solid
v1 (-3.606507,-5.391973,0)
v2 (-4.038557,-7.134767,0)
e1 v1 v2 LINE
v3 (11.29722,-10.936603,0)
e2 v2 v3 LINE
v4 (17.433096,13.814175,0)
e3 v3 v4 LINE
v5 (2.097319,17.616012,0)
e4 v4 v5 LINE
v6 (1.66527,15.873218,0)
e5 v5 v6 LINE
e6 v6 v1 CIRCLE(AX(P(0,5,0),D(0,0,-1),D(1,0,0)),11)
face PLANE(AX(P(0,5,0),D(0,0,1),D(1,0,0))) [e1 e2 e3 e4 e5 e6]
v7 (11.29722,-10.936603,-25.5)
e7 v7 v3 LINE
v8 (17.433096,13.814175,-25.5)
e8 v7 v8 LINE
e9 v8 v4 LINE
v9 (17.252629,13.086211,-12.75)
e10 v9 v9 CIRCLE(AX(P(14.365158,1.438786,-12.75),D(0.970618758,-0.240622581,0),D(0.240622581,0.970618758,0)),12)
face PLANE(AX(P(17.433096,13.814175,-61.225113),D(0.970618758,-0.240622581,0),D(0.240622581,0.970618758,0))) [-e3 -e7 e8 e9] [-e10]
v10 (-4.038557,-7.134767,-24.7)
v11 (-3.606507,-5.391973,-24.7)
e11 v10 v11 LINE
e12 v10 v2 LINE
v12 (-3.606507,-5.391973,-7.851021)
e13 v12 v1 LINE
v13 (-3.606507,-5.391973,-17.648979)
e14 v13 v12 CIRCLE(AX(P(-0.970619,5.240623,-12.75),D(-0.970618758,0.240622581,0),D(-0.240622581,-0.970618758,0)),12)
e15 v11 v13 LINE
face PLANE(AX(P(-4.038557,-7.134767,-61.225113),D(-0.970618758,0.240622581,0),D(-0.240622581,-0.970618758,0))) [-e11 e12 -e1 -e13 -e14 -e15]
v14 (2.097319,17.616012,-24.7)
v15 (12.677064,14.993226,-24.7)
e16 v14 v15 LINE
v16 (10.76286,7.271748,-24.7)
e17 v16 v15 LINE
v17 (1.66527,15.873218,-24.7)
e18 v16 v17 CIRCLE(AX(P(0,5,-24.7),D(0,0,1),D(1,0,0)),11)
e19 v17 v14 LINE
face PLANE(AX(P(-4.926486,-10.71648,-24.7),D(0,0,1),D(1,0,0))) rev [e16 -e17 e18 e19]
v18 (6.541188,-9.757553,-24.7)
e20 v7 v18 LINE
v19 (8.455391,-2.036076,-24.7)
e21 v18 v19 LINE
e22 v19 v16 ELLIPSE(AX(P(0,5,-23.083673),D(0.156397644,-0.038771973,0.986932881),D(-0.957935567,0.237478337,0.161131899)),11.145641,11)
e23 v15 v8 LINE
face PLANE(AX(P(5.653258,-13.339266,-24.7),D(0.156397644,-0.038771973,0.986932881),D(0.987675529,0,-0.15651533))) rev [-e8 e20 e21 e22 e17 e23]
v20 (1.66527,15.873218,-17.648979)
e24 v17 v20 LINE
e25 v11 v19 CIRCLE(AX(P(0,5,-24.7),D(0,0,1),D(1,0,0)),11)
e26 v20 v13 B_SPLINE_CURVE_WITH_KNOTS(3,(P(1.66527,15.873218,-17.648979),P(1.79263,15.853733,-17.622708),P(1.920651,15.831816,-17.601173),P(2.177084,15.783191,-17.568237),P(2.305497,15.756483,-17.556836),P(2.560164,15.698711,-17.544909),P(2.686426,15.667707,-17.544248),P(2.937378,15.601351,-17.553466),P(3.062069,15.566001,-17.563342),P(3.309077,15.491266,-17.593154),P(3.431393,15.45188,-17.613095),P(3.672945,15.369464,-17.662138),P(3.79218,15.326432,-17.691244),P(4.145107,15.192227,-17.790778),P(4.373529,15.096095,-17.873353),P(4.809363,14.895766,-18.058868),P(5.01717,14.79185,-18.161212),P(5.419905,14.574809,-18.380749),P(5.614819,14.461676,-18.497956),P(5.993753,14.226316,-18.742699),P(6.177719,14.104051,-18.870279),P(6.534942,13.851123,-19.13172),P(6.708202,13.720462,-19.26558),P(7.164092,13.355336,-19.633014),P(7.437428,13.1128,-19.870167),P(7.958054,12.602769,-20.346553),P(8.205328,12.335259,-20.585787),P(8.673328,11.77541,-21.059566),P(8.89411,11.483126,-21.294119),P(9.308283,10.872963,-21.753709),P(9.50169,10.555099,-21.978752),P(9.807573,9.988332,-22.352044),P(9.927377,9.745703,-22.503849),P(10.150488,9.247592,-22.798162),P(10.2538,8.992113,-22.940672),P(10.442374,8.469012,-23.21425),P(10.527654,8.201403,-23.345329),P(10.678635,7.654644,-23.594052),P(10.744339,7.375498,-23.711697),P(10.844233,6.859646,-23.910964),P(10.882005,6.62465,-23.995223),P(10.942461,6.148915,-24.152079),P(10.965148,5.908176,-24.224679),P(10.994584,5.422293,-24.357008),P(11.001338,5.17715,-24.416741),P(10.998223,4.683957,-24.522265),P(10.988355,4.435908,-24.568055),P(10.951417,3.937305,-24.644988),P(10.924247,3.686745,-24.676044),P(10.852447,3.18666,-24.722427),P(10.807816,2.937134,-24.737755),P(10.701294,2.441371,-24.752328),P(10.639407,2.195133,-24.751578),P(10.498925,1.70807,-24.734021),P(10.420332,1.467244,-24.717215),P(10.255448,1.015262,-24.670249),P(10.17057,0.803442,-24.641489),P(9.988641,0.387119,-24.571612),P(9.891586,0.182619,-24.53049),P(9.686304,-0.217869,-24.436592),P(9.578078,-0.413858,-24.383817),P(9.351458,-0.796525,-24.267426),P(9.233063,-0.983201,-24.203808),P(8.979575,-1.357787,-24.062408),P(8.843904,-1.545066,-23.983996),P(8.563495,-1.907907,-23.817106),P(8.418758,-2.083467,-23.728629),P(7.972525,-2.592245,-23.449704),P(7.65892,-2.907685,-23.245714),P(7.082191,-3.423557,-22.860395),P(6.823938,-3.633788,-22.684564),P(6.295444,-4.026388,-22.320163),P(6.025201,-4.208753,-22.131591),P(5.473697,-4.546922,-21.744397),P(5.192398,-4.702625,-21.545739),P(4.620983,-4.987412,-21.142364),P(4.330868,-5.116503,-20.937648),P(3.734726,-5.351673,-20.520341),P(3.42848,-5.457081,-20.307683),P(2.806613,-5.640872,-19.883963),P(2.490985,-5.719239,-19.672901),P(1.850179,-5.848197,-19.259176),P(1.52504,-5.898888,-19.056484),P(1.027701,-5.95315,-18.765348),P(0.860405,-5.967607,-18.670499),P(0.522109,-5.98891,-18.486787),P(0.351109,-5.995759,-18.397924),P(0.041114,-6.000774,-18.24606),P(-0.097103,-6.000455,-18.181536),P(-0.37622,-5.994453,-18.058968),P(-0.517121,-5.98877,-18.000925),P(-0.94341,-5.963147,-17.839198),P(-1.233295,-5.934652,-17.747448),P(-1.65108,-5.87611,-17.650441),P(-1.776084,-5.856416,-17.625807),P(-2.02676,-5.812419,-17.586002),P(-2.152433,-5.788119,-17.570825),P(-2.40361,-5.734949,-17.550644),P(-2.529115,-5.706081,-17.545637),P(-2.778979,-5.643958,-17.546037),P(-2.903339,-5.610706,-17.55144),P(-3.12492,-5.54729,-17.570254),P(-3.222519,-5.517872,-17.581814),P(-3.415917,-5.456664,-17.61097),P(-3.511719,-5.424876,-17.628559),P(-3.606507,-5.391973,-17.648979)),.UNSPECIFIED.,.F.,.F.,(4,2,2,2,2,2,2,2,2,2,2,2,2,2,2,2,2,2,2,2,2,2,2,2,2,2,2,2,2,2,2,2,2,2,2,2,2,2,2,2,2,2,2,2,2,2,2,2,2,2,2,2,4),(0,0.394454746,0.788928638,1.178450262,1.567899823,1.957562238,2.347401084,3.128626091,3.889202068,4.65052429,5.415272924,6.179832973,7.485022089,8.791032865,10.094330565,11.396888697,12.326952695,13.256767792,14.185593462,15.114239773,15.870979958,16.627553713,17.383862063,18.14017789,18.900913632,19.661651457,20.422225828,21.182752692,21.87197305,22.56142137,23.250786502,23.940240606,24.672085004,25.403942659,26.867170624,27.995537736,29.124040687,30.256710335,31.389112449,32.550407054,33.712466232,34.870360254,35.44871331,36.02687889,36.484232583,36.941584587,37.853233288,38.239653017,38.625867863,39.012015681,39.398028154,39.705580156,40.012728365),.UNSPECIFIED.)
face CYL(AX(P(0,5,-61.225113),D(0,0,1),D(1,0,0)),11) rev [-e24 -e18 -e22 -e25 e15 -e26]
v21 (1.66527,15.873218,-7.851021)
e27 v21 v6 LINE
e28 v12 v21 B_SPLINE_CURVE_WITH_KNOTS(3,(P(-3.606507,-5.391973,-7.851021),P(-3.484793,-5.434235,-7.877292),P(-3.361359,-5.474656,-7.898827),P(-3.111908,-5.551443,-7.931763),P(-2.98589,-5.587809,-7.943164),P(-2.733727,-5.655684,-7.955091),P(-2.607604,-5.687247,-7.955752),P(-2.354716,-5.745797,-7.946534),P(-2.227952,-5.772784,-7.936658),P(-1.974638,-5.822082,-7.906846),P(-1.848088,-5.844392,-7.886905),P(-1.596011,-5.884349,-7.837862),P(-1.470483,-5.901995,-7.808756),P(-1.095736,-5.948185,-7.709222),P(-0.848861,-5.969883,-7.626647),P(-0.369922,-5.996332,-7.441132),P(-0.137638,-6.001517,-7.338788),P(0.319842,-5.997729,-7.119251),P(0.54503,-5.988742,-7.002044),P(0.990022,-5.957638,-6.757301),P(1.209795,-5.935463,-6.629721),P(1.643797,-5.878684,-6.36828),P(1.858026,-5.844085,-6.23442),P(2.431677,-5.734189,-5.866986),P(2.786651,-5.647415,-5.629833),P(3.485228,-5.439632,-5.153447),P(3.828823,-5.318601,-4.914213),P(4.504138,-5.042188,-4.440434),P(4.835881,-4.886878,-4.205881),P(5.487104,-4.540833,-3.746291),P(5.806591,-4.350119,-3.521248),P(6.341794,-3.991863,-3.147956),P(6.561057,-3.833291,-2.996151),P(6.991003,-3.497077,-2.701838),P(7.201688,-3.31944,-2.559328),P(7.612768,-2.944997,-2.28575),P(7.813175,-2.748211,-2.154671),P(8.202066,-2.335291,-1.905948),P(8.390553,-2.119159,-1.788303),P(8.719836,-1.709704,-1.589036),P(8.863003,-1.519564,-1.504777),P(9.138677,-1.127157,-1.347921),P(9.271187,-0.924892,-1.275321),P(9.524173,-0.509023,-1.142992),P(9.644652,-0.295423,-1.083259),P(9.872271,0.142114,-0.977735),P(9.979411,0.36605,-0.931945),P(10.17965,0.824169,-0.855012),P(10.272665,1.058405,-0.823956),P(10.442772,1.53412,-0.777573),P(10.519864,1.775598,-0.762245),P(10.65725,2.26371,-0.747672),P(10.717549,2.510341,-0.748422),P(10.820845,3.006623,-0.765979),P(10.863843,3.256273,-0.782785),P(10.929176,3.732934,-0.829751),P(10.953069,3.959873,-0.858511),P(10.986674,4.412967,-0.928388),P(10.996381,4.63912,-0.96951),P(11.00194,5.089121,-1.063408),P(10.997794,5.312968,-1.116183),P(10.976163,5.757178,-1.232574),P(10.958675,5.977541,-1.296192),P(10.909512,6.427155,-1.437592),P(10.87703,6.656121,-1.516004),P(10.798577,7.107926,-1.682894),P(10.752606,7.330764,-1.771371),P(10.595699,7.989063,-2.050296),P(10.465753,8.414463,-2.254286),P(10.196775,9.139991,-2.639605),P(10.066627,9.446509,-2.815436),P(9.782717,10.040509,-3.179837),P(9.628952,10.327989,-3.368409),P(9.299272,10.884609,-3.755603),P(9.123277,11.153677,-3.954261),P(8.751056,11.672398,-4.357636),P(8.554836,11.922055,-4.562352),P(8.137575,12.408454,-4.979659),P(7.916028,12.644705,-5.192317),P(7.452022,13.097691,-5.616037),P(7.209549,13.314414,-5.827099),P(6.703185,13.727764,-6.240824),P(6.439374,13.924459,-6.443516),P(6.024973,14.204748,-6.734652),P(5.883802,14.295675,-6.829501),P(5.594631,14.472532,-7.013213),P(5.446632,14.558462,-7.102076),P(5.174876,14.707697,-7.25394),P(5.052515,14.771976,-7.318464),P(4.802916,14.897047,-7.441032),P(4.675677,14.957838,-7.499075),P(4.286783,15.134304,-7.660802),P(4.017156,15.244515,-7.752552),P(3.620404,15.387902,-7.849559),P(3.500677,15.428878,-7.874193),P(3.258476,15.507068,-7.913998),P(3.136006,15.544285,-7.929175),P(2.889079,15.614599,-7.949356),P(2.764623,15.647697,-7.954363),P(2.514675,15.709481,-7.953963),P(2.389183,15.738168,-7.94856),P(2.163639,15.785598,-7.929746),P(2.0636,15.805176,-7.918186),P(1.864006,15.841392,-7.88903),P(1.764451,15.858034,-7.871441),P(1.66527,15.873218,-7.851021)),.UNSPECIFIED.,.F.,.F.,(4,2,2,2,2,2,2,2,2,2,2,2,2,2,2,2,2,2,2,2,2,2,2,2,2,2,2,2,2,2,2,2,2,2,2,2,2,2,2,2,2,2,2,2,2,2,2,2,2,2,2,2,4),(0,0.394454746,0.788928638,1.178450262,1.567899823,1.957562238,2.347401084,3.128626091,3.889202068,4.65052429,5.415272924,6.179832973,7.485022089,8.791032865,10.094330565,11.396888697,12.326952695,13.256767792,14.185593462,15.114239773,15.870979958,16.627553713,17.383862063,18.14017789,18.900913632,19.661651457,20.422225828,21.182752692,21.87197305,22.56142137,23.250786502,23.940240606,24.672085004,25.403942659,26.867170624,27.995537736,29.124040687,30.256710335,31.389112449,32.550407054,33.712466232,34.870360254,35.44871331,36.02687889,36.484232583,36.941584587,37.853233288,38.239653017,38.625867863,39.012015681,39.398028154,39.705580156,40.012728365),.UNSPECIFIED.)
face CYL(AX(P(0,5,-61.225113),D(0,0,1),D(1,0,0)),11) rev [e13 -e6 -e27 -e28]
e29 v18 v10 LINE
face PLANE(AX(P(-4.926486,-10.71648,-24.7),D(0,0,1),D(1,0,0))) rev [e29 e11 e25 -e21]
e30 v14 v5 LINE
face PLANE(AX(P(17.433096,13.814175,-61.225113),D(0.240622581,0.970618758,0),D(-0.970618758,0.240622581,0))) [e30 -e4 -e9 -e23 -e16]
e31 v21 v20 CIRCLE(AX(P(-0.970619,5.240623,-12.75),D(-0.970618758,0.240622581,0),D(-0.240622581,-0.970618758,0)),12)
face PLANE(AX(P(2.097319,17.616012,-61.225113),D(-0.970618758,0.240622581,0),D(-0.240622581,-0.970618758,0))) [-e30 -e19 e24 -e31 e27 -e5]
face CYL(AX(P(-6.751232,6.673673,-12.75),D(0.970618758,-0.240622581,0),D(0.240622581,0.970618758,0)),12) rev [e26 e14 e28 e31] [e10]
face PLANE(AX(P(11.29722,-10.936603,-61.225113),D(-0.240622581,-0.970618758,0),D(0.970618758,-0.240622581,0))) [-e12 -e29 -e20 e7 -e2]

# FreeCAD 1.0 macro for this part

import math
import FreeCAD as App
import Part
import Sketcher
from FreeCAD import Vector

doc = App.newDocument("Part")
body = doc.addObject("PartDesign::Body", "Body")

# Sketch on XY plane
sketch1 = body.newObject("Sketcher::SketchObject", "Sketch")
sketch1.AttachmentSupport = (doc.getObject("XY_Plane"), [""])
sketch1.MapMode = "FlatFace"
sketch1.addGeometry(Part.LineSegment(Vector(17.4, 13.8, 0), Vector(2.1, 17.6, 0)), False)
sketch1.addGeometry(Part.LineSegment(Vector(2.1, 17.6, 0), Vector(1.7, 15.9, 0)), False)
sketch1.addGeometry(Part.ArcOfCircle(Part.Circle(Vector(0, 5, 0), Vector(0, 0, 1), 11), math.radians(-109), math.radians(81)), False)
sketch1.addGeometry(Part.LineSegment(Vector(-3.6, -5.4, 0), Vector(-4, -7.1, 0)), False)
sketch1.addGeometry(Part.LineSegment(Vector(-4, -7.1, 0), Vector(11.3, -10.9, 0)), False)
sketch1.addGeometry(Part.LineSegment(Vector(11.3, -10.9, 0), Vector(17.4, 13.8, 0)), False)
sketch1.addConstraint(Sketcher.Constraint("Coincident", 0, 2, 1, 1))
sketch1.addConstraint(Sketcher.Constraint("Coincident", 1, 2, 2, 2))
sketch1.addConstraint(Sketcher.Constraint("Coincident", 2, 1, 3, 1))
sketch1.addConstraint(Sketcher.Constraint("Coincident", 3, 2, 4, 1))
sketch1.addConstraint(Sketcher.Constraint("Coincident", 4, 2, 5, 1))
sketch1.addConstraint(Sketcher.Constraint("Coincident", 5, 2, 0, 1))
sketch1.addConstraint(Sketcher.Constraint("PointOnObject", 2, 3, -2))
sketch1.addConstraint(Sketcher.Constraint("Perpendicular", 0, 1))
sketch1.addConstraint(Sketcher.Constraint("Parallel", 1, 3))
sketch1.addConstraint(Sketcher.Constraint("Perpendicular", 3, 4))
sketch1.addConstraint(Sketcher.Constraint("Perpendicular", 4, 5))
sketch1.addConstraint(Sketcher.Constraint("Equal", 1, 3))
sketch1.addConstraint(Sketcher.Constraint("Equal", 0, 4))
sketch1.addConstraint(Sketcher.Constraint("Radius", 2, 11.0))
sketch1.addConstraint(Sketcher.Constraint("DistanceY", -1, 1, 2, 3, 5.0))
sketch1.addConstraint(Sketcher.Constraint("Distance", 0, 15.8))
sketch1.addConstraint(Sketcher.Constraint("Distance", 5, 25.5))
sketch1.addConstraint(Sketcher.Constraint("DistanceX", 0, 2, 4, 2, 9.199901))
sketch1.addConstraint(Sketcher.Constraint("Distance", 1, 1.795549))
pad1 = body.newObject("PartDesign::Pad", "Pad")
pad1.Profile = sketch1
pad1.Length = 25.5
pad1.Reversed = True

# Sketch on an angled plane
sketch2 = body.newObject("Sketcher::SketchObject", "Sketch001")
sketch2.Placement = App.Placement(Vector(4.235702, 17.085893, 0), App.Rotation(Vector(0, 0, 1), Vector(0.970618758, -0.240622581, 0), Vector(0.240622581, 0.970618758, 0), "ZXY"))
sketch2.addGeometry(Part.LineSegment(Vector(-24.7, -2.2, 0), Vector(-24.7, 8.7, 0)), False)
sketch2.addGeometry(Part.LineSegment(Vector(-24.7, 8.7, 0), Vector(-25.5, 13.6, 0)), False)
sketch2.addGeometry(Part.LineSegment(Vector(-25.5, 13.6, 0), Vector(-25.5, -2.2, 0)), False)
sketch2.addGeometry(Part.LineSegment(Vector(-25.5, -2.2, 0), Vector(-24.7, -2.2, 0)), False)
sketch2.addConstraint(Sketcher.Constraint("Coincident", 0, 2, 1, 1))
sketch2.addConstraint(Sketcher.Constraint("Coincident", 1, 2, 2, 1))
sketch2.addConstraint(Sketcher.Constraint("Coincident", 2, 2, 3, 1))
sketch2.addConstraint(Sketcher.Constraint("Coincident", 3, 2, 0, 1))
sketch2.addConstraint(Sketcher.Constraint("Vertical", 0))
sketch2.addConstraint(Sketcher.Constraint("Vertical", 2))
sketch2.addConstraint(Sketcher.Constraint("Horizontal", 3))
sketch2.addConstraint(Sketcher.Constraint("DistanceX", 3, 1, 3, 2, 0.8))
sketch2.addConstraint(Sketcher.Constraint("DistanceY", 0, 1, 0, 2, 10.9))
sketch2.addConstraint(Sketcher.Constraint("DistanceY", 2, 2, 2, 1, 15.8))
sketch2.addConstraint(Sketcher.Constraint("DistanceX", 0, 2, -1, 1, 24.7))
sketch2.addConstraint(Sketcher.Constraint("DistanceY", -1, 1, 0, 2, 8.696887))
pocket1 = body.newObject("PartDesign::Pocket", "Pocket")
pocket1.Profile = sketch2
pocket1.Type = "ThroughAll"

# Sketch on an angled plane
sketch3 = body.newObject("Sketcher::SketchObject", "Sketch002")
sketch3.Placement = App.Placement(Vector(13.197394, -3.271718, 0), App.Rotation(Vector(-0.240622581, -0.970618758, 0), Vector(0, 0, -1), Vector(0.970618758, -0.240622581, 0), "ZXY"))
sketch3.addGeometry(Part.Circle(Vector(-5, 13, 0), Vector(0, 0, 1), 12), False)
sketch3.addConstraint(Sketcher.Constraint("Diameter", 0, 24.0))
sketch3.addConstraint(Sketcher.Constraint("DistanceY", -1, 1, 0, 3, 12.75))
sketch3.addConstraint(Sketcher.Constraint("DistanceX", 0, 3, -1, 1, 4.853094))
pocket2 = body.newObject("PartDesign::Pocket", "Pocket001")
pocket2.Profile = sketch3
pocket2.Type = "ThroughAll"

doc.recompute()
